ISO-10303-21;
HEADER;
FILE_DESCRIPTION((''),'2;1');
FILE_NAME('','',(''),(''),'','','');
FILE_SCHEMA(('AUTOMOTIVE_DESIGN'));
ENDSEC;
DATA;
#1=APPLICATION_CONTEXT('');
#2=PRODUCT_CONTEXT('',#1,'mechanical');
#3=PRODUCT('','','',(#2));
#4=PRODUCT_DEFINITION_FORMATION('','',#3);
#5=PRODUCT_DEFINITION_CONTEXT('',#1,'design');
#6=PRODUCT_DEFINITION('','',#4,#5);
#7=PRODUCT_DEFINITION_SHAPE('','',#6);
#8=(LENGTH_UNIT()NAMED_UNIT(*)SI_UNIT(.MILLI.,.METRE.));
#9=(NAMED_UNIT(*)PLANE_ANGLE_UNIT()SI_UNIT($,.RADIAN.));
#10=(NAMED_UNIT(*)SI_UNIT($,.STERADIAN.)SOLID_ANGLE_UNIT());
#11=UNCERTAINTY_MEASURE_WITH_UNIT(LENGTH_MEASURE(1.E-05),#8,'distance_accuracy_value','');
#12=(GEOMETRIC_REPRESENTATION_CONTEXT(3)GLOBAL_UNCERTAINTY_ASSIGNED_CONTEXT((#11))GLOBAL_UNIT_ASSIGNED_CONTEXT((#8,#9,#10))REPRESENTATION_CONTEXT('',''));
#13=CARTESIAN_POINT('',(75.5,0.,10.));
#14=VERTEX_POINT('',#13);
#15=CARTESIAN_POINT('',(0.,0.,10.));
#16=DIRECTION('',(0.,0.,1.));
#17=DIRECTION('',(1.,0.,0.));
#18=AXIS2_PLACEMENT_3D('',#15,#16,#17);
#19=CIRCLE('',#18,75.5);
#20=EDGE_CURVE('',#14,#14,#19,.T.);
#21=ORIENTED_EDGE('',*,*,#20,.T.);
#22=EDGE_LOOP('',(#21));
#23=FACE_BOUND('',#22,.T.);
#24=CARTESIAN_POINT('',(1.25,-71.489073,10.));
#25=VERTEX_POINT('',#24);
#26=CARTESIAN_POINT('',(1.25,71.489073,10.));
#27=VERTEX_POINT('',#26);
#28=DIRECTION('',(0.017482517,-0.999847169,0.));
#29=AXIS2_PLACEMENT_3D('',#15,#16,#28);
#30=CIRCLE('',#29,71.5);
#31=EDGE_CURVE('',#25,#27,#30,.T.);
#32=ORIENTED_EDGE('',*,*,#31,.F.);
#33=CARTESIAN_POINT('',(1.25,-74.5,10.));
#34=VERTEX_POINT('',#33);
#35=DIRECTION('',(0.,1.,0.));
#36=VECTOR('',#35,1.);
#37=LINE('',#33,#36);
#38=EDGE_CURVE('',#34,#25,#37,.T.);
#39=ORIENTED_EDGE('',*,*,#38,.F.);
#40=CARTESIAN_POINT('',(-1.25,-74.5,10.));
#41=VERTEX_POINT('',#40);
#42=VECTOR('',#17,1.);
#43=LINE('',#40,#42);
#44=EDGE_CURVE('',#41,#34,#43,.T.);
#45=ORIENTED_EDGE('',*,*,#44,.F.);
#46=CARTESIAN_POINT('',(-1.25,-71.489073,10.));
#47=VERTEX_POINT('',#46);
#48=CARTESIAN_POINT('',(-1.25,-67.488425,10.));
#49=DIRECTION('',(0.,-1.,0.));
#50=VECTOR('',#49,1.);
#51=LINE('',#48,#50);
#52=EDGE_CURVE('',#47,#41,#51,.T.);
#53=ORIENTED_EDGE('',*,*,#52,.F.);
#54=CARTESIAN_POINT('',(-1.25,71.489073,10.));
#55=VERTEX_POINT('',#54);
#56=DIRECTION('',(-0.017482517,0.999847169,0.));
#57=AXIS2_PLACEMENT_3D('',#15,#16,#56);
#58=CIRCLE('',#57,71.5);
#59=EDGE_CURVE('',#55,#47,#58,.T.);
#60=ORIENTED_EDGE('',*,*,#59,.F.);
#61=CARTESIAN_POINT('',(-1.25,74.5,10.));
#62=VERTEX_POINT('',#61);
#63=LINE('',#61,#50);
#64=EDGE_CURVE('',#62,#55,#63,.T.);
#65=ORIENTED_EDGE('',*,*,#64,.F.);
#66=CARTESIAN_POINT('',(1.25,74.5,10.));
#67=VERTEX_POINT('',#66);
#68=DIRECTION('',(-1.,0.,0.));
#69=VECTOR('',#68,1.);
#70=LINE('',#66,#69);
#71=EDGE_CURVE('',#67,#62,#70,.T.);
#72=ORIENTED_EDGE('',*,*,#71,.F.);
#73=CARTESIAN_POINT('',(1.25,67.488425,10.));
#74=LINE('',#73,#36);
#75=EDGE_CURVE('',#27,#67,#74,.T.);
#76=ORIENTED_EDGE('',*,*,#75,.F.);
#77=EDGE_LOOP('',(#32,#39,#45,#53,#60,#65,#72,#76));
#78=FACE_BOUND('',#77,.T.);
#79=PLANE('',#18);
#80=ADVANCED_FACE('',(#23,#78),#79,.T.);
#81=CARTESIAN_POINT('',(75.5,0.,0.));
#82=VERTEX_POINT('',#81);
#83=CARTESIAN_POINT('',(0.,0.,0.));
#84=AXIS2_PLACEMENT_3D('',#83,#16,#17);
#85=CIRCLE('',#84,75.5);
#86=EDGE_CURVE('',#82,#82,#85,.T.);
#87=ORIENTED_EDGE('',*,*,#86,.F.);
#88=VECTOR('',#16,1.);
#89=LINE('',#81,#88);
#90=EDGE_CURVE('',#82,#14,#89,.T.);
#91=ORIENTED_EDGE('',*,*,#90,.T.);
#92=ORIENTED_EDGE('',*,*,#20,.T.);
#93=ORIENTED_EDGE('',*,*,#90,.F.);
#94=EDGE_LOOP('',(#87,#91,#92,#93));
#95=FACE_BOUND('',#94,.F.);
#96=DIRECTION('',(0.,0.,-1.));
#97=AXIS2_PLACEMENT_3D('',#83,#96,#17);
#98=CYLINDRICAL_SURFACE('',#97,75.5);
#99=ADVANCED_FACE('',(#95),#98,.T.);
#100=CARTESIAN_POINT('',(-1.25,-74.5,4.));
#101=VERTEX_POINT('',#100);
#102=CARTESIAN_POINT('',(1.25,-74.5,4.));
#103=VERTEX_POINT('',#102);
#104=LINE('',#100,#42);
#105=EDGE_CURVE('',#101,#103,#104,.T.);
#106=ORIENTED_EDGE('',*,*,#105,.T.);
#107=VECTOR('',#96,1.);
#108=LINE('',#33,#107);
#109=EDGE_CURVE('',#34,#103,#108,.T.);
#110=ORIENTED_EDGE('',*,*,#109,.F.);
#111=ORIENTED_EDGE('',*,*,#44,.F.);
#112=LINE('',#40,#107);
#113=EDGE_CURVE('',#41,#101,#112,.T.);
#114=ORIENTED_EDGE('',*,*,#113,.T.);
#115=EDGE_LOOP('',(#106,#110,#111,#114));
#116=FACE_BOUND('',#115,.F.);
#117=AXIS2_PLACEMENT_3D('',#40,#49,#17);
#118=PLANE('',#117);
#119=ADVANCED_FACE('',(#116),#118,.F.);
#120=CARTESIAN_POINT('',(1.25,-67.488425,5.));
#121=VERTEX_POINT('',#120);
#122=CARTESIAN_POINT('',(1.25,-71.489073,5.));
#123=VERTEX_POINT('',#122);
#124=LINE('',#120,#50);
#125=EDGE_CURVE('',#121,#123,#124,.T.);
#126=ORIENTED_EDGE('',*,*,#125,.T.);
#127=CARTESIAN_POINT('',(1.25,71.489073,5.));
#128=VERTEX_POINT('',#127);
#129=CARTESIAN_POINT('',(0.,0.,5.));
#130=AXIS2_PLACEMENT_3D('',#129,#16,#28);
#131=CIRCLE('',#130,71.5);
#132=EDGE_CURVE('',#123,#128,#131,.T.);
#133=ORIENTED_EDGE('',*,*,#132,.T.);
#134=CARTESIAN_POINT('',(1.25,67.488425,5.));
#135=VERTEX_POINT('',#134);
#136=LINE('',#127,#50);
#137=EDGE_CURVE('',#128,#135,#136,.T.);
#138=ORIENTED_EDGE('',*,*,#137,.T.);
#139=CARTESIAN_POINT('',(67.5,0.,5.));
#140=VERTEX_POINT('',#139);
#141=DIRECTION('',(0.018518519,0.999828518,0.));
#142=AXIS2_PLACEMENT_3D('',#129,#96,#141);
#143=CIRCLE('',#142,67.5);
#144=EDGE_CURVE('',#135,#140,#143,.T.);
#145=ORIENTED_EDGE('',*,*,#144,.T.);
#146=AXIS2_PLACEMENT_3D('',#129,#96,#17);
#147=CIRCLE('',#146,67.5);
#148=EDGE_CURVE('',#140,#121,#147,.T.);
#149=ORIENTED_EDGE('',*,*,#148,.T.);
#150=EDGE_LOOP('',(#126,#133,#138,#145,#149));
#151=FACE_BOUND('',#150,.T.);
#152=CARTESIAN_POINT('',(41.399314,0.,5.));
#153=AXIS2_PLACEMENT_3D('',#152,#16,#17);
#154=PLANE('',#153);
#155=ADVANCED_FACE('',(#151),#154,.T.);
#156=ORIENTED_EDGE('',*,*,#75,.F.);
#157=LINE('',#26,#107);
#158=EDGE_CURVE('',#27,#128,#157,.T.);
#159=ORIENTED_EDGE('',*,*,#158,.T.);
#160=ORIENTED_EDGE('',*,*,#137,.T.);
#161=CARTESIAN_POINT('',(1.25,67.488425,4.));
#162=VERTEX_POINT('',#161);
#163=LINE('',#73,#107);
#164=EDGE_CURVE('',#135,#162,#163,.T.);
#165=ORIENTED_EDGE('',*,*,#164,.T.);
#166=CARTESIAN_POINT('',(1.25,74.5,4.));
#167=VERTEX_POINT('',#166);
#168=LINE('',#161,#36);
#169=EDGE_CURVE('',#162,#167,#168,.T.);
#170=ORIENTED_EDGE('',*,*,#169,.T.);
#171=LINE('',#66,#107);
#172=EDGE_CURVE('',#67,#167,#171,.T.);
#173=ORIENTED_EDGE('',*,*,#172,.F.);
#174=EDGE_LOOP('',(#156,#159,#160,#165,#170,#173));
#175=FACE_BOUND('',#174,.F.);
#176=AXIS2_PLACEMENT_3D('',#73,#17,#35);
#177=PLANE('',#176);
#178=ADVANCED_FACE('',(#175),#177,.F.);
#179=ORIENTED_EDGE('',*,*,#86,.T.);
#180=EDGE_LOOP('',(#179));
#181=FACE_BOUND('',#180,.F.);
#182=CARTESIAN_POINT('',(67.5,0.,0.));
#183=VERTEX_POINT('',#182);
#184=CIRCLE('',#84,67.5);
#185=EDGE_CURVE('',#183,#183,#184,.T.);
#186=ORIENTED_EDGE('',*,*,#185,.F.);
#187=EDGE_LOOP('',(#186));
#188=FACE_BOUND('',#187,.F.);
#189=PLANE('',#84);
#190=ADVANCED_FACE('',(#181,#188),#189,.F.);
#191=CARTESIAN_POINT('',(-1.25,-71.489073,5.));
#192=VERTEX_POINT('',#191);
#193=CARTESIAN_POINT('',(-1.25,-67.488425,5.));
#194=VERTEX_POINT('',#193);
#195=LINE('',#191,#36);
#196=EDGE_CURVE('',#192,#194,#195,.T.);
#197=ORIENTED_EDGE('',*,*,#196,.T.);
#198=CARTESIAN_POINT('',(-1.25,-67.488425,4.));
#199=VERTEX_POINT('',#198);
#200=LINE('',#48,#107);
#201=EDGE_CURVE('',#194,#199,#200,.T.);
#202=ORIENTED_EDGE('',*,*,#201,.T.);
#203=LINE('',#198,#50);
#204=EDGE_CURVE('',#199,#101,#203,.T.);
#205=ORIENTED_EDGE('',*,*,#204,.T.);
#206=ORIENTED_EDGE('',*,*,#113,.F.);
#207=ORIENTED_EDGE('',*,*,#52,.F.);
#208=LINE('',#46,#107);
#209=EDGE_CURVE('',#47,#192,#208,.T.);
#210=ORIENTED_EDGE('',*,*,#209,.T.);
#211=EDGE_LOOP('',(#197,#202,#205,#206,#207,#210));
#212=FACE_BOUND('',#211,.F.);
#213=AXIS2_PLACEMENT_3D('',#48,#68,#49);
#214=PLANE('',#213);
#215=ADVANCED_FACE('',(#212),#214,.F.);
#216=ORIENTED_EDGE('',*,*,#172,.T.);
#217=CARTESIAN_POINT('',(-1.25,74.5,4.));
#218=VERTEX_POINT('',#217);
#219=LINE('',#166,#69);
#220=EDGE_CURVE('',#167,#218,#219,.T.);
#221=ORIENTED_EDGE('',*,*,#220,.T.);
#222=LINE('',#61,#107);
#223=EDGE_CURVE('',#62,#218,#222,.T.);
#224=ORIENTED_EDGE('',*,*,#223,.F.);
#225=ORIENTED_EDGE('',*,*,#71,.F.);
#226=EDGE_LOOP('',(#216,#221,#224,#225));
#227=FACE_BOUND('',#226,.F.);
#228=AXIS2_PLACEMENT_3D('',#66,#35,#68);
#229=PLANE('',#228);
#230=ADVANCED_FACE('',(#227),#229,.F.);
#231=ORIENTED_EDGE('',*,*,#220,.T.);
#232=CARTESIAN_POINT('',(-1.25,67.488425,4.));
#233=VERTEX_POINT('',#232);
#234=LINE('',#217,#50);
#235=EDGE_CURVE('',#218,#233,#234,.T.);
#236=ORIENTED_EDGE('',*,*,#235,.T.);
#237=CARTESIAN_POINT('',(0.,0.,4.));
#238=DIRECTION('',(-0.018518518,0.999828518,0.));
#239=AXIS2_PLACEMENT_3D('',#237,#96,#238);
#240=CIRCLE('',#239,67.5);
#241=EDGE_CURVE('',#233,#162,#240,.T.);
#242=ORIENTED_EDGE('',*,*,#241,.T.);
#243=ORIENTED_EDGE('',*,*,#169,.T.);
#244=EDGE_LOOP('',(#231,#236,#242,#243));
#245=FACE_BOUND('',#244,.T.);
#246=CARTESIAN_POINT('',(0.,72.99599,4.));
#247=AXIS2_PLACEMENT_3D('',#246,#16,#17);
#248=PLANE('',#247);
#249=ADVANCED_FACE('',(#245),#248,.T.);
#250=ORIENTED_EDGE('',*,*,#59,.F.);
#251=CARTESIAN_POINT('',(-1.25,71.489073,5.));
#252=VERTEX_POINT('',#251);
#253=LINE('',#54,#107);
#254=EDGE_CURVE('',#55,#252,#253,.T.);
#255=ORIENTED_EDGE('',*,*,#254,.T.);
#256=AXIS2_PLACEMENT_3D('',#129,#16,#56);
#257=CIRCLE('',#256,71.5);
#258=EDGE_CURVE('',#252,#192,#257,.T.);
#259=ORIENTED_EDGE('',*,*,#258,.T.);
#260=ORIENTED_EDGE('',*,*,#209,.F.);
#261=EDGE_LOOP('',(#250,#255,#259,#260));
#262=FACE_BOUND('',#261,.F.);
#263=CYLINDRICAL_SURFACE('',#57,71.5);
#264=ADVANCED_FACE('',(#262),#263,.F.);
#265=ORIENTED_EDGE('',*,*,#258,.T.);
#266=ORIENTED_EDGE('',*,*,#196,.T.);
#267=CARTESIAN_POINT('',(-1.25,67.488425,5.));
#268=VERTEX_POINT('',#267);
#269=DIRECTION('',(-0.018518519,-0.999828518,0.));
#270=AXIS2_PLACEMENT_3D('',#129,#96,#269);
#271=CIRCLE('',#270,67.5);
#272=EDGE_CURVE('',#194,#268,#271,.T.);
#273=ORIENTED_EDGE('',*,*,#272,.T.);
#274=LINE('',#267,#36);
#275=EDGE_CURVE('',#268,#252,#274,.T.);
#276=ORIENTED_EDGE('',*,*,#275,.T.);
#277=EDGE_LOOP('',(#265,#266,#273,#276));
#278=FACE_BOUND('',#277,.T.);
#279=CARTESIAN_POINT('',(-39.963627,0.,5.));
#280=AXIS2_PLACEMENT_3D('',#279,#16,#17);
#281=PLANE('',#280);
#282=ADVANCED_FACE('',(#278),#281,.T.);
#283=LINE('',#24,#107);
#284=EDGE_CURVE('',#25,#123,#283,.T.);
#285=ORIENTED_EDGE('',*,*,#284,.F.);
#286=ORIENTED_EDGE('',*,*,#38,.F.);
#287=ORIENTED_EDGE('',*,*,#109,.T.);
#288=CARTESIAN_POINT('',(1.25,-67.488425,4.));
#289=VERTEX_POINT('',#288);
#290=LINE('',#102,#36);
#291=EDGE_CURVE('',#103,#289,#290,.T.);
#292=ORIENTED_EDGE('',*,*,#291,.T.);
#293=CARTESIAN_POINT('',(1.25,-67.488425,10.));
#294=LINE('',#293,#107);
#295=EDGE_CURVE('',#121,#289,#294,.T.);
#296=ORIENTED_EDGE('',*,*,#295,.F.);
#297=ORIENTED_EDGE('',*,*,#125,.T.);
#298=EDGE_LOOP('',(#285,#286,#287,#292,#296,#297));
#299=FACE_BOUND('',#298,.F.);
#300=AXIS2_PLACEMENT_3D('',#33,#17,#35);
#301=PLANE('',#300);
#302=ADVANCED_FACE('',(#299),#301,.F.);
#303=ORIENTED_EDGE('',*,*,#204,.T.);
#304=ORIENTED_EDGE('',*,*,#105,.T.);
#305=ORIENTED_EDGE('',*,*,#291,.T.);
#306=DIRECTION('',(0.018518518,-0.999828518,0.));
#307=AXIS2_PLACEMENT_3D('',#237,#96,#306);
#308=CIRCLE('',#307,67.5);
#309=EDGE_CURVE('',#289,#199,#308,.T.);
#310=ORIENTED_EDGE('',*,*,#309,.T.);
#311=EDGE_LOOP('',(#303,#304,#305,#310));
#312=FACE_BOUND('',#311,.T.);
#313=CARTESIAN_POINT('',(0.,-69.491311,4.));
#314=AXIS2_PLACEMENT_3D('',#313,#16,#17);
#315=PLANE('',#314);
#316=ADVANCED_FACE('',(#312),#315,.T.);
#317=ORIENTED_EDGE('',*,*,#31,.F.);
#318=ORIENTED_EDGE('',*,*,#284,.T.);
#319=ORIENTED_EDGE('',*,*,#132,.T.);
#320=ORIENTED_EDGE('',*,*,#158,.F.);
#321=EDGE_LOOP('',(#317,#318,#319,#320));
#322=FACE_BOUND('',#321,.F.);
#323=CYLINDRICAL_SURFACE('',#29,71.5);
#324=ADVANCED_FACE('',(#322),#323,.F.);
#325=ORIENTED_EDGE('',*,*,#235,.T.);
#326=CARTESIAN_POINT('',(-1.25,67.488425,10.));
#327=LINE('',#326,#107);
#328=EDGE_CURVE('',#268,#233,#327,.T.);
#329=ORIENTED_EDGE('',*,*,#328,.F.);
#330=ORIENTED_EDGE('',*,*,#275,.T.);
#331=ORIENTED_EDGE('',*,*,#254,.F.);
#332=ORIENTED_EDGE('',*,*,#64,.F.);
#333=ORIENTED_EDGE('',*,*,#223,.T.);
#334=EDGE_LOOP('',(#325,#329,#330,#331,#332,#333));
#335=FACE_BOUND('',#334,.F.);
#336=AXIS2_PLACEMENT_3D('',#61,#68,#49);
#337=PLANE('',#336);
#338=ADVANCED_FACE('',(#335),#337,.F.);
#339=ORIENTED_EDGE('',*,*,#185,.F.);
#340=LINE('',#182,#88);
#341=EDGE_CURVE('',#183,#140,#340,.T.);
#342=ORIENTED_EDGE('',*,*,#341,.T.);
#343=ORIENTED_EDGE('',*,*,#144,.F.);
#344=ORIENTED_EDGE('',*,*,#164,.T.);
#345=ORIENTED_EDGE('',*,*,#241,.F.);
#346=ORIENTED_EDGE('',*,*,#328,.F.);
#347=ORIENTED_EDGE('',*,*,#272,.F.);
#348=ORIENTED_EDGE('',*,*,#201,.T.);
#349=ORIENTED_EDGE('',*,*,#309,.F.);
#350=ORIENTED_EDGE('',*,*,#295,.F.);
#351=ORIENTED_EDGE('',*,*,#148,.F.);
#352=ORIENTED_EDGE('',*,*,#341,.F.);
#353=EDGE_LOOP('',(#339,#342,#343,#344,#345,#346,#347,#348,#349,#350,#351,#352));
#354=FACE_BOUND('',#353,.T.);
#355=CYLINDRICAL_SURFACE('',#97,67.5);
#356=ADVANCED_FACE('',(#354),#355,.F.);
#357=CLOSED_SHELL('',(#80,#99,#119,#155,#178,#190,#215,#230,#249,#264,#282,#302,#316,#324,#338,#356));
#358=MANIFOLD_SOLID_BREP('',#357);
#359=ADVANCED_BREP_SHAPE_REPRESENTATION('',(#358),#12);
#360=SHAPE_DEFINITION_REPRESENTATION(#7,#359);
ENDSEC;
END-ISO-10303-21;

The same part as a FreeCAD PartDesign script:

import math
import FreeCAD as App
import Part
import Sketcher

V = App.Vector

doc = App.newDocument("Part")
params = doc.addObject("Spreadsheet::Sheet", "Params")
for row, (alias, value) in enumerate([
    ("sketch1_diameter", "151 mm"),
    ("sketch1_diameter2", "135 mm"),
    ("pad1_length", "10 mm"),
    ("sketch2_radius", "67.5 mm"),
    ("sketch2_width", "2.5 mm"),
    ("pocket1_length", "6 mm"),
    ("sketch3_radius", "67.5 mm"),
    ("sketch3_radius2", "71.5 mm"),
    ("pocket2_length", "5 mm"),
], start=1):
    params.set(f"A{row}", alias)
    params.set(f"B{row}", "=" + value)
    params.setAlias(f"B{row}", alias)

body = doc.addObject("PartDesign::Body", "Body")

# Sketch on XY plane
sketch1 = body.newObject("Sketcher::SketchObject", "Sketch")
sketch1.AttachmentSupport = (doc.getObject("XY_Plane"), [""])
sketch1.MapMode = "FlatFace"
sketch1.addGeometry(Part.Circle(V(0, 0, 0), V(0, 0, 1), 75.5), False)
sketch1.addGeometry(Part.Circle(V(0, 0, 0), V(0, 0, 1), 67.5), False)
sketch1.addConstraint(Sketcher.Constraint("Coincident", 0, 3, -1, 1))
sketch1.addConstraint(Sketcher.Constraint("Coincident", 1, 3, -1, 1))
sketch1.addConstraint(Sketcher.Constraint("Diameter", 0, 151.0))
sketch1.addConstraint(Sketcher.Constraint("Diameter", 1, 135.0))
sketch1.setExpression("Constraints[2]", "Params.sketch1_diameter")
sketch1.setExpression("Constraints[3]", "Params.sketch1_diameter2")
pad1 = body.newObject("PartDesign::Pad", "Pad")
pad1.Profile = sketch1
pad1.setExpression("Length", "Params.pad1_length")

# Sketch on XY plane
sketch2 = body.newObject("Sketcher::SketchObject", "Sketch001")
sketch2.AttachmentSupport = (doc.getObject("XY_Plane"), [""])
sketch2.MapMode = "FlatFace"
sketch2.AttachmentOffset = App.Placement(V(0, 0, 10), App.Rotation())
sketch2.addGeometry(Part.LineSegment(V(1.25, 74.5, 0), V(-1.25, 74.5, 0)), False)
sketch2.addGeometry(Part.LineSegment(V(-1.25, 74.5, 0), V(-1.25, 67.488425, 0)), False)
sketch2.addGeometry(Part.ArcOfCircle(Part.Circle(V(0, 0, 0), V(0, 0, 1), 67.5), math.radians(88.938906), math.radians(91.061094)), False)
sketch2.addGeometry(Part.LineSegment(V(1.25, 67.488425, 0), V(1.25, 74.5, 0)), False)
sketch2.addGeometry(Part.LineSegment(V(-1.25, -67.488425, 0), V(-1.25, -74.5, 0)), False)
sketch2.addGeometry(Part.LineSegment(V(-1.25, -74.5, 0), V(1.25, -74.5, 0)), False)
sketch2.addGeometry(Part.LineSegment(V(1.25, -74.5, 0), V(1.25, -67.488425, 0)), False)
sketch2.addGeometry(Part.ArcOfCircle(Part.Circle(V(0, 0, 0), V(0, 0, 1), 67.5), math.radians(-91.061094), math.radians(-88.938906)), False)
sketch2.addConstraint(Sketcher.Constraint("Coincident", 0, 2, 1, 1))
sketch2.addConstraint(Sketcher.Constraint("Coincident", 1, 2, 2, 2))
sketch2.addConstraint(Sketcher.Constraint("Coincident", 2, 1, 3, 1))
sketch2.addConstraint(Sketcher.Constraint("Coincident", 3, 2, 0, 1))
sketch2.addConstraint(Sketcher.Constraint("Coincident", 4, 2, 5, 1))
sketch2.addConstraint(Sketcher.Constraint("Coincident", 5, 2, 6, 1))
sketch2.addConstraint(Sketcher.Constraint("Coincident", 6, 2, 7, 2))
sketch2.addConstraint(Sketcher.Constraint("Coincident", 7, 1, 4, 1))
sketch2.addConstraint(Sketcher.Constraint("Horizontal", 0))
sketch2.addConstraint(Sketcher.Constraint("Vertical", 1))
sketch2.addConstraint(Sketcher.Constraint("Vertical", 3))
sketch2.addConstraint(Sketcher.Constraint("Vertical", 4))
sketch2.addConstraint(Sketcher.Constraint("Horizontal", 5))
sketch2.addConstraint(Sketcher.Constraint("Vertical", 6))
sketch2.addConstraint(Sketcher.Constraint("Coincident", 2, 3, -1, 1))
sketch2.addConstraint(Sketcher.Constraint("Coincident", 7, 3, -1, 1))
sketch2.addConstraint(Sketcher.Constraint("Equal", 2, 7))
sketch2.addConstraint(Sketcher.Constraint("Symmetric", 3, 2, 4, 2, -1, 1))
sketch2.addConstraint(Sketcher.Constraint("Horizontal", 1, 2, 2, 1))
sketch2.addConstraint(Sketcher.Constraint("Horizontal", 6, 2, 7, 1))
sketch2.addConstraint(Sketcher.Constraint("Radius", 2, 67.5))
sketch2.addConstraint(Sketcher.Constraint("DistanceX", 0, 2, 0, 1, 2.5))
sketch2.addConstraint(Sketcher.Constraint("DistanceY", 4, 2, 0, 2, 149.0))
sketch2.setExpression("Constraints[20]", "Params.sketch2_radius")
sketch2.setExpression("Constraints[21]", "Params.sketch2_width")
pocket1 = body.newObject("PartDesign::Pocket", "Pocket")
pocket1.Profile = sketch2
pocket1.setExpression("Length", "Params.pocket1_length")

# Sketch on XY plane
sketch3 = body.newObject("Sketcher::SketchObject", "Sketch002")
sketch3.AttachmentSupport = (doc.getObject("XY_Plane"), [""])
sketch3.MapMode = "FlatFace"
sketch3.AttachmentOffset = App.Placement(V(0, 0, 10), App.Rotation())
sketch3.addGeometry(Part.LineSegment(V(1.25, 71.489073, 0), V(1.25, 67.488425, 0)), False)
sketch3.addGeometry(Part.ArcOfCircle(Part.Circle(V(0, 0, 0), V(0, 0, 1), 67.5), math.radians(0), math.radians(88.938906)), False)
sketch3.addGeometry(Part.ArcOfCircle(Part.Circle(V(0, 0, 0), V(0, 0, 1), 67.5), math.radians(-88.938906), math.radians(0)), False)
sketch3.addGeometry(Part.LineSegment(V(1.25, -67.488425, 0), V(1.25, -71.489073, 0)), False)
sketch3.addGeometry(Part.ArcOfCircle(Part.Circle(V(0, 0, 0), V(0, 0, 1), 71.5), math.radians(-88.998275), math.radians(88.998275)), False)
sketch3.addGeometry(Part.LineSegment(V(-1.25, 67.488425, 0), V(-1.25, 71.489073, 0)), False)
sketch3.addGeometry(Part.ArcOfCircle(Part.Circle(V(0, 0, 0), V(0, 0, 1), 71.5), math.radians(91.001725), math.radians(268.998275)), False)
sketch3.addGeometry(Part.LineSegment(V(-1.25, -71.489073, 0), V(-1.25, -67.488425, 0)), False)
sketch3.addGeometry(Part.ArcOfCircle(Part.Circle(V(0, 0, 0), V(0, 0, 1), 67.5), math.radians(91.061094), math.radians(268.938906)), False)
sketch3.addConstraint(Sketcher.Constraint("Coincident", 0, 2, 1, 2))
sketch3.addConstraint(Sketcher.Constraint("Tangent", 1, 1, 2, 2))
sketch3.addConstraint(Sketcher.Constraint("Coincident", 2, 1, 3, 1))
sketch3.addConstraint(Sketcher.Constraint("Coincident", 3, 2, 4, 1))
sketch3.addConstraint(Sketcher.Constraint("Coincident", 4, 2, 0, 1))
sketch3.addConstraint(Sketcher.Constraint("Coincident", 5, 2, 6, 1))
sketch3.addConstraint(Sketcher.Constraint("Coincident", 6, 2, 7, 1))
sketch3.addConstraint(Sketcher.Constraint("Coincident", 7, 2, 8, 2))
sketch3.addConstraint(Sketcher.Constraint("Coincident", 8, 1, 5, 1))
sketch3.addConstraint(Sketcher.Constraint("Vertical", 0))
sketch3.addConstraint(Sketcher.Constraint("Vertical", 3))
sketch3.addConstraint(Sketcher.Constraint("Vertical", 5))
sketch3.addConstraint(Sketcher.Constraint("Vertical", 7))
sketch3.addConstraint(Sketcher.Constraint("Coincident", 1, 3, -1, 1))
sketch3.addConstraint(Sketcher.Constraint("Coincident", 4, 3, -1, 1))
sketch3.addConstraint(Sketcher.Constraint("Coincident", 6, 3, -1, 1))
sketch3.addConstraint(Sketcher.Constraint("Coincident", 8, 3, -1, 1))
sketch3.addConstraint(Sketcher.Constraint("Equal", 1, 2))
sketch3.addConstraint(Sketcher.Constraint("Equal", 4, 6))
sketch3.addConstraint(Sketcher.Constraint("Equal", 2, 8))
sketch3.addConstraint(Sketcher.Constraint("PointOnObject", 1, 1, -1))
sketch3.addConstraint(Sketcher.Constraint("Horizontal", 4, 2, 5, 2))
sketch3.addConstraint(Sketcher.Constraint("Horizontal", 3, 2, 6, 2))
sketch3.addConstraint(Sketcher.Constraint("Vertical", 0, 2, 2, 1))
sketch3.addConstraint(Sketcher.Constraint("Radius", 1, 67.5))
sketch3.addConstraint(Sketcher.Constraint("Radius", 4, 71.5))
sketch3.addConstraint(Sketcher.Constraint("DistanceX", 5, 2, 4, 2, 2.5))
sketch3.setExpression("Constraints[24]", "Params.sketch3_radius")
sketch3.setExpression("Constraints[25]", "Params.sketch3_radius2")
pocket2 = body.newObject("PartDesign::Pocket", "Pocket001")
pocket2.Profile = sketch3
pocket2.setExpression("Length", "Params.pocket2_length")

doc.recompute()
